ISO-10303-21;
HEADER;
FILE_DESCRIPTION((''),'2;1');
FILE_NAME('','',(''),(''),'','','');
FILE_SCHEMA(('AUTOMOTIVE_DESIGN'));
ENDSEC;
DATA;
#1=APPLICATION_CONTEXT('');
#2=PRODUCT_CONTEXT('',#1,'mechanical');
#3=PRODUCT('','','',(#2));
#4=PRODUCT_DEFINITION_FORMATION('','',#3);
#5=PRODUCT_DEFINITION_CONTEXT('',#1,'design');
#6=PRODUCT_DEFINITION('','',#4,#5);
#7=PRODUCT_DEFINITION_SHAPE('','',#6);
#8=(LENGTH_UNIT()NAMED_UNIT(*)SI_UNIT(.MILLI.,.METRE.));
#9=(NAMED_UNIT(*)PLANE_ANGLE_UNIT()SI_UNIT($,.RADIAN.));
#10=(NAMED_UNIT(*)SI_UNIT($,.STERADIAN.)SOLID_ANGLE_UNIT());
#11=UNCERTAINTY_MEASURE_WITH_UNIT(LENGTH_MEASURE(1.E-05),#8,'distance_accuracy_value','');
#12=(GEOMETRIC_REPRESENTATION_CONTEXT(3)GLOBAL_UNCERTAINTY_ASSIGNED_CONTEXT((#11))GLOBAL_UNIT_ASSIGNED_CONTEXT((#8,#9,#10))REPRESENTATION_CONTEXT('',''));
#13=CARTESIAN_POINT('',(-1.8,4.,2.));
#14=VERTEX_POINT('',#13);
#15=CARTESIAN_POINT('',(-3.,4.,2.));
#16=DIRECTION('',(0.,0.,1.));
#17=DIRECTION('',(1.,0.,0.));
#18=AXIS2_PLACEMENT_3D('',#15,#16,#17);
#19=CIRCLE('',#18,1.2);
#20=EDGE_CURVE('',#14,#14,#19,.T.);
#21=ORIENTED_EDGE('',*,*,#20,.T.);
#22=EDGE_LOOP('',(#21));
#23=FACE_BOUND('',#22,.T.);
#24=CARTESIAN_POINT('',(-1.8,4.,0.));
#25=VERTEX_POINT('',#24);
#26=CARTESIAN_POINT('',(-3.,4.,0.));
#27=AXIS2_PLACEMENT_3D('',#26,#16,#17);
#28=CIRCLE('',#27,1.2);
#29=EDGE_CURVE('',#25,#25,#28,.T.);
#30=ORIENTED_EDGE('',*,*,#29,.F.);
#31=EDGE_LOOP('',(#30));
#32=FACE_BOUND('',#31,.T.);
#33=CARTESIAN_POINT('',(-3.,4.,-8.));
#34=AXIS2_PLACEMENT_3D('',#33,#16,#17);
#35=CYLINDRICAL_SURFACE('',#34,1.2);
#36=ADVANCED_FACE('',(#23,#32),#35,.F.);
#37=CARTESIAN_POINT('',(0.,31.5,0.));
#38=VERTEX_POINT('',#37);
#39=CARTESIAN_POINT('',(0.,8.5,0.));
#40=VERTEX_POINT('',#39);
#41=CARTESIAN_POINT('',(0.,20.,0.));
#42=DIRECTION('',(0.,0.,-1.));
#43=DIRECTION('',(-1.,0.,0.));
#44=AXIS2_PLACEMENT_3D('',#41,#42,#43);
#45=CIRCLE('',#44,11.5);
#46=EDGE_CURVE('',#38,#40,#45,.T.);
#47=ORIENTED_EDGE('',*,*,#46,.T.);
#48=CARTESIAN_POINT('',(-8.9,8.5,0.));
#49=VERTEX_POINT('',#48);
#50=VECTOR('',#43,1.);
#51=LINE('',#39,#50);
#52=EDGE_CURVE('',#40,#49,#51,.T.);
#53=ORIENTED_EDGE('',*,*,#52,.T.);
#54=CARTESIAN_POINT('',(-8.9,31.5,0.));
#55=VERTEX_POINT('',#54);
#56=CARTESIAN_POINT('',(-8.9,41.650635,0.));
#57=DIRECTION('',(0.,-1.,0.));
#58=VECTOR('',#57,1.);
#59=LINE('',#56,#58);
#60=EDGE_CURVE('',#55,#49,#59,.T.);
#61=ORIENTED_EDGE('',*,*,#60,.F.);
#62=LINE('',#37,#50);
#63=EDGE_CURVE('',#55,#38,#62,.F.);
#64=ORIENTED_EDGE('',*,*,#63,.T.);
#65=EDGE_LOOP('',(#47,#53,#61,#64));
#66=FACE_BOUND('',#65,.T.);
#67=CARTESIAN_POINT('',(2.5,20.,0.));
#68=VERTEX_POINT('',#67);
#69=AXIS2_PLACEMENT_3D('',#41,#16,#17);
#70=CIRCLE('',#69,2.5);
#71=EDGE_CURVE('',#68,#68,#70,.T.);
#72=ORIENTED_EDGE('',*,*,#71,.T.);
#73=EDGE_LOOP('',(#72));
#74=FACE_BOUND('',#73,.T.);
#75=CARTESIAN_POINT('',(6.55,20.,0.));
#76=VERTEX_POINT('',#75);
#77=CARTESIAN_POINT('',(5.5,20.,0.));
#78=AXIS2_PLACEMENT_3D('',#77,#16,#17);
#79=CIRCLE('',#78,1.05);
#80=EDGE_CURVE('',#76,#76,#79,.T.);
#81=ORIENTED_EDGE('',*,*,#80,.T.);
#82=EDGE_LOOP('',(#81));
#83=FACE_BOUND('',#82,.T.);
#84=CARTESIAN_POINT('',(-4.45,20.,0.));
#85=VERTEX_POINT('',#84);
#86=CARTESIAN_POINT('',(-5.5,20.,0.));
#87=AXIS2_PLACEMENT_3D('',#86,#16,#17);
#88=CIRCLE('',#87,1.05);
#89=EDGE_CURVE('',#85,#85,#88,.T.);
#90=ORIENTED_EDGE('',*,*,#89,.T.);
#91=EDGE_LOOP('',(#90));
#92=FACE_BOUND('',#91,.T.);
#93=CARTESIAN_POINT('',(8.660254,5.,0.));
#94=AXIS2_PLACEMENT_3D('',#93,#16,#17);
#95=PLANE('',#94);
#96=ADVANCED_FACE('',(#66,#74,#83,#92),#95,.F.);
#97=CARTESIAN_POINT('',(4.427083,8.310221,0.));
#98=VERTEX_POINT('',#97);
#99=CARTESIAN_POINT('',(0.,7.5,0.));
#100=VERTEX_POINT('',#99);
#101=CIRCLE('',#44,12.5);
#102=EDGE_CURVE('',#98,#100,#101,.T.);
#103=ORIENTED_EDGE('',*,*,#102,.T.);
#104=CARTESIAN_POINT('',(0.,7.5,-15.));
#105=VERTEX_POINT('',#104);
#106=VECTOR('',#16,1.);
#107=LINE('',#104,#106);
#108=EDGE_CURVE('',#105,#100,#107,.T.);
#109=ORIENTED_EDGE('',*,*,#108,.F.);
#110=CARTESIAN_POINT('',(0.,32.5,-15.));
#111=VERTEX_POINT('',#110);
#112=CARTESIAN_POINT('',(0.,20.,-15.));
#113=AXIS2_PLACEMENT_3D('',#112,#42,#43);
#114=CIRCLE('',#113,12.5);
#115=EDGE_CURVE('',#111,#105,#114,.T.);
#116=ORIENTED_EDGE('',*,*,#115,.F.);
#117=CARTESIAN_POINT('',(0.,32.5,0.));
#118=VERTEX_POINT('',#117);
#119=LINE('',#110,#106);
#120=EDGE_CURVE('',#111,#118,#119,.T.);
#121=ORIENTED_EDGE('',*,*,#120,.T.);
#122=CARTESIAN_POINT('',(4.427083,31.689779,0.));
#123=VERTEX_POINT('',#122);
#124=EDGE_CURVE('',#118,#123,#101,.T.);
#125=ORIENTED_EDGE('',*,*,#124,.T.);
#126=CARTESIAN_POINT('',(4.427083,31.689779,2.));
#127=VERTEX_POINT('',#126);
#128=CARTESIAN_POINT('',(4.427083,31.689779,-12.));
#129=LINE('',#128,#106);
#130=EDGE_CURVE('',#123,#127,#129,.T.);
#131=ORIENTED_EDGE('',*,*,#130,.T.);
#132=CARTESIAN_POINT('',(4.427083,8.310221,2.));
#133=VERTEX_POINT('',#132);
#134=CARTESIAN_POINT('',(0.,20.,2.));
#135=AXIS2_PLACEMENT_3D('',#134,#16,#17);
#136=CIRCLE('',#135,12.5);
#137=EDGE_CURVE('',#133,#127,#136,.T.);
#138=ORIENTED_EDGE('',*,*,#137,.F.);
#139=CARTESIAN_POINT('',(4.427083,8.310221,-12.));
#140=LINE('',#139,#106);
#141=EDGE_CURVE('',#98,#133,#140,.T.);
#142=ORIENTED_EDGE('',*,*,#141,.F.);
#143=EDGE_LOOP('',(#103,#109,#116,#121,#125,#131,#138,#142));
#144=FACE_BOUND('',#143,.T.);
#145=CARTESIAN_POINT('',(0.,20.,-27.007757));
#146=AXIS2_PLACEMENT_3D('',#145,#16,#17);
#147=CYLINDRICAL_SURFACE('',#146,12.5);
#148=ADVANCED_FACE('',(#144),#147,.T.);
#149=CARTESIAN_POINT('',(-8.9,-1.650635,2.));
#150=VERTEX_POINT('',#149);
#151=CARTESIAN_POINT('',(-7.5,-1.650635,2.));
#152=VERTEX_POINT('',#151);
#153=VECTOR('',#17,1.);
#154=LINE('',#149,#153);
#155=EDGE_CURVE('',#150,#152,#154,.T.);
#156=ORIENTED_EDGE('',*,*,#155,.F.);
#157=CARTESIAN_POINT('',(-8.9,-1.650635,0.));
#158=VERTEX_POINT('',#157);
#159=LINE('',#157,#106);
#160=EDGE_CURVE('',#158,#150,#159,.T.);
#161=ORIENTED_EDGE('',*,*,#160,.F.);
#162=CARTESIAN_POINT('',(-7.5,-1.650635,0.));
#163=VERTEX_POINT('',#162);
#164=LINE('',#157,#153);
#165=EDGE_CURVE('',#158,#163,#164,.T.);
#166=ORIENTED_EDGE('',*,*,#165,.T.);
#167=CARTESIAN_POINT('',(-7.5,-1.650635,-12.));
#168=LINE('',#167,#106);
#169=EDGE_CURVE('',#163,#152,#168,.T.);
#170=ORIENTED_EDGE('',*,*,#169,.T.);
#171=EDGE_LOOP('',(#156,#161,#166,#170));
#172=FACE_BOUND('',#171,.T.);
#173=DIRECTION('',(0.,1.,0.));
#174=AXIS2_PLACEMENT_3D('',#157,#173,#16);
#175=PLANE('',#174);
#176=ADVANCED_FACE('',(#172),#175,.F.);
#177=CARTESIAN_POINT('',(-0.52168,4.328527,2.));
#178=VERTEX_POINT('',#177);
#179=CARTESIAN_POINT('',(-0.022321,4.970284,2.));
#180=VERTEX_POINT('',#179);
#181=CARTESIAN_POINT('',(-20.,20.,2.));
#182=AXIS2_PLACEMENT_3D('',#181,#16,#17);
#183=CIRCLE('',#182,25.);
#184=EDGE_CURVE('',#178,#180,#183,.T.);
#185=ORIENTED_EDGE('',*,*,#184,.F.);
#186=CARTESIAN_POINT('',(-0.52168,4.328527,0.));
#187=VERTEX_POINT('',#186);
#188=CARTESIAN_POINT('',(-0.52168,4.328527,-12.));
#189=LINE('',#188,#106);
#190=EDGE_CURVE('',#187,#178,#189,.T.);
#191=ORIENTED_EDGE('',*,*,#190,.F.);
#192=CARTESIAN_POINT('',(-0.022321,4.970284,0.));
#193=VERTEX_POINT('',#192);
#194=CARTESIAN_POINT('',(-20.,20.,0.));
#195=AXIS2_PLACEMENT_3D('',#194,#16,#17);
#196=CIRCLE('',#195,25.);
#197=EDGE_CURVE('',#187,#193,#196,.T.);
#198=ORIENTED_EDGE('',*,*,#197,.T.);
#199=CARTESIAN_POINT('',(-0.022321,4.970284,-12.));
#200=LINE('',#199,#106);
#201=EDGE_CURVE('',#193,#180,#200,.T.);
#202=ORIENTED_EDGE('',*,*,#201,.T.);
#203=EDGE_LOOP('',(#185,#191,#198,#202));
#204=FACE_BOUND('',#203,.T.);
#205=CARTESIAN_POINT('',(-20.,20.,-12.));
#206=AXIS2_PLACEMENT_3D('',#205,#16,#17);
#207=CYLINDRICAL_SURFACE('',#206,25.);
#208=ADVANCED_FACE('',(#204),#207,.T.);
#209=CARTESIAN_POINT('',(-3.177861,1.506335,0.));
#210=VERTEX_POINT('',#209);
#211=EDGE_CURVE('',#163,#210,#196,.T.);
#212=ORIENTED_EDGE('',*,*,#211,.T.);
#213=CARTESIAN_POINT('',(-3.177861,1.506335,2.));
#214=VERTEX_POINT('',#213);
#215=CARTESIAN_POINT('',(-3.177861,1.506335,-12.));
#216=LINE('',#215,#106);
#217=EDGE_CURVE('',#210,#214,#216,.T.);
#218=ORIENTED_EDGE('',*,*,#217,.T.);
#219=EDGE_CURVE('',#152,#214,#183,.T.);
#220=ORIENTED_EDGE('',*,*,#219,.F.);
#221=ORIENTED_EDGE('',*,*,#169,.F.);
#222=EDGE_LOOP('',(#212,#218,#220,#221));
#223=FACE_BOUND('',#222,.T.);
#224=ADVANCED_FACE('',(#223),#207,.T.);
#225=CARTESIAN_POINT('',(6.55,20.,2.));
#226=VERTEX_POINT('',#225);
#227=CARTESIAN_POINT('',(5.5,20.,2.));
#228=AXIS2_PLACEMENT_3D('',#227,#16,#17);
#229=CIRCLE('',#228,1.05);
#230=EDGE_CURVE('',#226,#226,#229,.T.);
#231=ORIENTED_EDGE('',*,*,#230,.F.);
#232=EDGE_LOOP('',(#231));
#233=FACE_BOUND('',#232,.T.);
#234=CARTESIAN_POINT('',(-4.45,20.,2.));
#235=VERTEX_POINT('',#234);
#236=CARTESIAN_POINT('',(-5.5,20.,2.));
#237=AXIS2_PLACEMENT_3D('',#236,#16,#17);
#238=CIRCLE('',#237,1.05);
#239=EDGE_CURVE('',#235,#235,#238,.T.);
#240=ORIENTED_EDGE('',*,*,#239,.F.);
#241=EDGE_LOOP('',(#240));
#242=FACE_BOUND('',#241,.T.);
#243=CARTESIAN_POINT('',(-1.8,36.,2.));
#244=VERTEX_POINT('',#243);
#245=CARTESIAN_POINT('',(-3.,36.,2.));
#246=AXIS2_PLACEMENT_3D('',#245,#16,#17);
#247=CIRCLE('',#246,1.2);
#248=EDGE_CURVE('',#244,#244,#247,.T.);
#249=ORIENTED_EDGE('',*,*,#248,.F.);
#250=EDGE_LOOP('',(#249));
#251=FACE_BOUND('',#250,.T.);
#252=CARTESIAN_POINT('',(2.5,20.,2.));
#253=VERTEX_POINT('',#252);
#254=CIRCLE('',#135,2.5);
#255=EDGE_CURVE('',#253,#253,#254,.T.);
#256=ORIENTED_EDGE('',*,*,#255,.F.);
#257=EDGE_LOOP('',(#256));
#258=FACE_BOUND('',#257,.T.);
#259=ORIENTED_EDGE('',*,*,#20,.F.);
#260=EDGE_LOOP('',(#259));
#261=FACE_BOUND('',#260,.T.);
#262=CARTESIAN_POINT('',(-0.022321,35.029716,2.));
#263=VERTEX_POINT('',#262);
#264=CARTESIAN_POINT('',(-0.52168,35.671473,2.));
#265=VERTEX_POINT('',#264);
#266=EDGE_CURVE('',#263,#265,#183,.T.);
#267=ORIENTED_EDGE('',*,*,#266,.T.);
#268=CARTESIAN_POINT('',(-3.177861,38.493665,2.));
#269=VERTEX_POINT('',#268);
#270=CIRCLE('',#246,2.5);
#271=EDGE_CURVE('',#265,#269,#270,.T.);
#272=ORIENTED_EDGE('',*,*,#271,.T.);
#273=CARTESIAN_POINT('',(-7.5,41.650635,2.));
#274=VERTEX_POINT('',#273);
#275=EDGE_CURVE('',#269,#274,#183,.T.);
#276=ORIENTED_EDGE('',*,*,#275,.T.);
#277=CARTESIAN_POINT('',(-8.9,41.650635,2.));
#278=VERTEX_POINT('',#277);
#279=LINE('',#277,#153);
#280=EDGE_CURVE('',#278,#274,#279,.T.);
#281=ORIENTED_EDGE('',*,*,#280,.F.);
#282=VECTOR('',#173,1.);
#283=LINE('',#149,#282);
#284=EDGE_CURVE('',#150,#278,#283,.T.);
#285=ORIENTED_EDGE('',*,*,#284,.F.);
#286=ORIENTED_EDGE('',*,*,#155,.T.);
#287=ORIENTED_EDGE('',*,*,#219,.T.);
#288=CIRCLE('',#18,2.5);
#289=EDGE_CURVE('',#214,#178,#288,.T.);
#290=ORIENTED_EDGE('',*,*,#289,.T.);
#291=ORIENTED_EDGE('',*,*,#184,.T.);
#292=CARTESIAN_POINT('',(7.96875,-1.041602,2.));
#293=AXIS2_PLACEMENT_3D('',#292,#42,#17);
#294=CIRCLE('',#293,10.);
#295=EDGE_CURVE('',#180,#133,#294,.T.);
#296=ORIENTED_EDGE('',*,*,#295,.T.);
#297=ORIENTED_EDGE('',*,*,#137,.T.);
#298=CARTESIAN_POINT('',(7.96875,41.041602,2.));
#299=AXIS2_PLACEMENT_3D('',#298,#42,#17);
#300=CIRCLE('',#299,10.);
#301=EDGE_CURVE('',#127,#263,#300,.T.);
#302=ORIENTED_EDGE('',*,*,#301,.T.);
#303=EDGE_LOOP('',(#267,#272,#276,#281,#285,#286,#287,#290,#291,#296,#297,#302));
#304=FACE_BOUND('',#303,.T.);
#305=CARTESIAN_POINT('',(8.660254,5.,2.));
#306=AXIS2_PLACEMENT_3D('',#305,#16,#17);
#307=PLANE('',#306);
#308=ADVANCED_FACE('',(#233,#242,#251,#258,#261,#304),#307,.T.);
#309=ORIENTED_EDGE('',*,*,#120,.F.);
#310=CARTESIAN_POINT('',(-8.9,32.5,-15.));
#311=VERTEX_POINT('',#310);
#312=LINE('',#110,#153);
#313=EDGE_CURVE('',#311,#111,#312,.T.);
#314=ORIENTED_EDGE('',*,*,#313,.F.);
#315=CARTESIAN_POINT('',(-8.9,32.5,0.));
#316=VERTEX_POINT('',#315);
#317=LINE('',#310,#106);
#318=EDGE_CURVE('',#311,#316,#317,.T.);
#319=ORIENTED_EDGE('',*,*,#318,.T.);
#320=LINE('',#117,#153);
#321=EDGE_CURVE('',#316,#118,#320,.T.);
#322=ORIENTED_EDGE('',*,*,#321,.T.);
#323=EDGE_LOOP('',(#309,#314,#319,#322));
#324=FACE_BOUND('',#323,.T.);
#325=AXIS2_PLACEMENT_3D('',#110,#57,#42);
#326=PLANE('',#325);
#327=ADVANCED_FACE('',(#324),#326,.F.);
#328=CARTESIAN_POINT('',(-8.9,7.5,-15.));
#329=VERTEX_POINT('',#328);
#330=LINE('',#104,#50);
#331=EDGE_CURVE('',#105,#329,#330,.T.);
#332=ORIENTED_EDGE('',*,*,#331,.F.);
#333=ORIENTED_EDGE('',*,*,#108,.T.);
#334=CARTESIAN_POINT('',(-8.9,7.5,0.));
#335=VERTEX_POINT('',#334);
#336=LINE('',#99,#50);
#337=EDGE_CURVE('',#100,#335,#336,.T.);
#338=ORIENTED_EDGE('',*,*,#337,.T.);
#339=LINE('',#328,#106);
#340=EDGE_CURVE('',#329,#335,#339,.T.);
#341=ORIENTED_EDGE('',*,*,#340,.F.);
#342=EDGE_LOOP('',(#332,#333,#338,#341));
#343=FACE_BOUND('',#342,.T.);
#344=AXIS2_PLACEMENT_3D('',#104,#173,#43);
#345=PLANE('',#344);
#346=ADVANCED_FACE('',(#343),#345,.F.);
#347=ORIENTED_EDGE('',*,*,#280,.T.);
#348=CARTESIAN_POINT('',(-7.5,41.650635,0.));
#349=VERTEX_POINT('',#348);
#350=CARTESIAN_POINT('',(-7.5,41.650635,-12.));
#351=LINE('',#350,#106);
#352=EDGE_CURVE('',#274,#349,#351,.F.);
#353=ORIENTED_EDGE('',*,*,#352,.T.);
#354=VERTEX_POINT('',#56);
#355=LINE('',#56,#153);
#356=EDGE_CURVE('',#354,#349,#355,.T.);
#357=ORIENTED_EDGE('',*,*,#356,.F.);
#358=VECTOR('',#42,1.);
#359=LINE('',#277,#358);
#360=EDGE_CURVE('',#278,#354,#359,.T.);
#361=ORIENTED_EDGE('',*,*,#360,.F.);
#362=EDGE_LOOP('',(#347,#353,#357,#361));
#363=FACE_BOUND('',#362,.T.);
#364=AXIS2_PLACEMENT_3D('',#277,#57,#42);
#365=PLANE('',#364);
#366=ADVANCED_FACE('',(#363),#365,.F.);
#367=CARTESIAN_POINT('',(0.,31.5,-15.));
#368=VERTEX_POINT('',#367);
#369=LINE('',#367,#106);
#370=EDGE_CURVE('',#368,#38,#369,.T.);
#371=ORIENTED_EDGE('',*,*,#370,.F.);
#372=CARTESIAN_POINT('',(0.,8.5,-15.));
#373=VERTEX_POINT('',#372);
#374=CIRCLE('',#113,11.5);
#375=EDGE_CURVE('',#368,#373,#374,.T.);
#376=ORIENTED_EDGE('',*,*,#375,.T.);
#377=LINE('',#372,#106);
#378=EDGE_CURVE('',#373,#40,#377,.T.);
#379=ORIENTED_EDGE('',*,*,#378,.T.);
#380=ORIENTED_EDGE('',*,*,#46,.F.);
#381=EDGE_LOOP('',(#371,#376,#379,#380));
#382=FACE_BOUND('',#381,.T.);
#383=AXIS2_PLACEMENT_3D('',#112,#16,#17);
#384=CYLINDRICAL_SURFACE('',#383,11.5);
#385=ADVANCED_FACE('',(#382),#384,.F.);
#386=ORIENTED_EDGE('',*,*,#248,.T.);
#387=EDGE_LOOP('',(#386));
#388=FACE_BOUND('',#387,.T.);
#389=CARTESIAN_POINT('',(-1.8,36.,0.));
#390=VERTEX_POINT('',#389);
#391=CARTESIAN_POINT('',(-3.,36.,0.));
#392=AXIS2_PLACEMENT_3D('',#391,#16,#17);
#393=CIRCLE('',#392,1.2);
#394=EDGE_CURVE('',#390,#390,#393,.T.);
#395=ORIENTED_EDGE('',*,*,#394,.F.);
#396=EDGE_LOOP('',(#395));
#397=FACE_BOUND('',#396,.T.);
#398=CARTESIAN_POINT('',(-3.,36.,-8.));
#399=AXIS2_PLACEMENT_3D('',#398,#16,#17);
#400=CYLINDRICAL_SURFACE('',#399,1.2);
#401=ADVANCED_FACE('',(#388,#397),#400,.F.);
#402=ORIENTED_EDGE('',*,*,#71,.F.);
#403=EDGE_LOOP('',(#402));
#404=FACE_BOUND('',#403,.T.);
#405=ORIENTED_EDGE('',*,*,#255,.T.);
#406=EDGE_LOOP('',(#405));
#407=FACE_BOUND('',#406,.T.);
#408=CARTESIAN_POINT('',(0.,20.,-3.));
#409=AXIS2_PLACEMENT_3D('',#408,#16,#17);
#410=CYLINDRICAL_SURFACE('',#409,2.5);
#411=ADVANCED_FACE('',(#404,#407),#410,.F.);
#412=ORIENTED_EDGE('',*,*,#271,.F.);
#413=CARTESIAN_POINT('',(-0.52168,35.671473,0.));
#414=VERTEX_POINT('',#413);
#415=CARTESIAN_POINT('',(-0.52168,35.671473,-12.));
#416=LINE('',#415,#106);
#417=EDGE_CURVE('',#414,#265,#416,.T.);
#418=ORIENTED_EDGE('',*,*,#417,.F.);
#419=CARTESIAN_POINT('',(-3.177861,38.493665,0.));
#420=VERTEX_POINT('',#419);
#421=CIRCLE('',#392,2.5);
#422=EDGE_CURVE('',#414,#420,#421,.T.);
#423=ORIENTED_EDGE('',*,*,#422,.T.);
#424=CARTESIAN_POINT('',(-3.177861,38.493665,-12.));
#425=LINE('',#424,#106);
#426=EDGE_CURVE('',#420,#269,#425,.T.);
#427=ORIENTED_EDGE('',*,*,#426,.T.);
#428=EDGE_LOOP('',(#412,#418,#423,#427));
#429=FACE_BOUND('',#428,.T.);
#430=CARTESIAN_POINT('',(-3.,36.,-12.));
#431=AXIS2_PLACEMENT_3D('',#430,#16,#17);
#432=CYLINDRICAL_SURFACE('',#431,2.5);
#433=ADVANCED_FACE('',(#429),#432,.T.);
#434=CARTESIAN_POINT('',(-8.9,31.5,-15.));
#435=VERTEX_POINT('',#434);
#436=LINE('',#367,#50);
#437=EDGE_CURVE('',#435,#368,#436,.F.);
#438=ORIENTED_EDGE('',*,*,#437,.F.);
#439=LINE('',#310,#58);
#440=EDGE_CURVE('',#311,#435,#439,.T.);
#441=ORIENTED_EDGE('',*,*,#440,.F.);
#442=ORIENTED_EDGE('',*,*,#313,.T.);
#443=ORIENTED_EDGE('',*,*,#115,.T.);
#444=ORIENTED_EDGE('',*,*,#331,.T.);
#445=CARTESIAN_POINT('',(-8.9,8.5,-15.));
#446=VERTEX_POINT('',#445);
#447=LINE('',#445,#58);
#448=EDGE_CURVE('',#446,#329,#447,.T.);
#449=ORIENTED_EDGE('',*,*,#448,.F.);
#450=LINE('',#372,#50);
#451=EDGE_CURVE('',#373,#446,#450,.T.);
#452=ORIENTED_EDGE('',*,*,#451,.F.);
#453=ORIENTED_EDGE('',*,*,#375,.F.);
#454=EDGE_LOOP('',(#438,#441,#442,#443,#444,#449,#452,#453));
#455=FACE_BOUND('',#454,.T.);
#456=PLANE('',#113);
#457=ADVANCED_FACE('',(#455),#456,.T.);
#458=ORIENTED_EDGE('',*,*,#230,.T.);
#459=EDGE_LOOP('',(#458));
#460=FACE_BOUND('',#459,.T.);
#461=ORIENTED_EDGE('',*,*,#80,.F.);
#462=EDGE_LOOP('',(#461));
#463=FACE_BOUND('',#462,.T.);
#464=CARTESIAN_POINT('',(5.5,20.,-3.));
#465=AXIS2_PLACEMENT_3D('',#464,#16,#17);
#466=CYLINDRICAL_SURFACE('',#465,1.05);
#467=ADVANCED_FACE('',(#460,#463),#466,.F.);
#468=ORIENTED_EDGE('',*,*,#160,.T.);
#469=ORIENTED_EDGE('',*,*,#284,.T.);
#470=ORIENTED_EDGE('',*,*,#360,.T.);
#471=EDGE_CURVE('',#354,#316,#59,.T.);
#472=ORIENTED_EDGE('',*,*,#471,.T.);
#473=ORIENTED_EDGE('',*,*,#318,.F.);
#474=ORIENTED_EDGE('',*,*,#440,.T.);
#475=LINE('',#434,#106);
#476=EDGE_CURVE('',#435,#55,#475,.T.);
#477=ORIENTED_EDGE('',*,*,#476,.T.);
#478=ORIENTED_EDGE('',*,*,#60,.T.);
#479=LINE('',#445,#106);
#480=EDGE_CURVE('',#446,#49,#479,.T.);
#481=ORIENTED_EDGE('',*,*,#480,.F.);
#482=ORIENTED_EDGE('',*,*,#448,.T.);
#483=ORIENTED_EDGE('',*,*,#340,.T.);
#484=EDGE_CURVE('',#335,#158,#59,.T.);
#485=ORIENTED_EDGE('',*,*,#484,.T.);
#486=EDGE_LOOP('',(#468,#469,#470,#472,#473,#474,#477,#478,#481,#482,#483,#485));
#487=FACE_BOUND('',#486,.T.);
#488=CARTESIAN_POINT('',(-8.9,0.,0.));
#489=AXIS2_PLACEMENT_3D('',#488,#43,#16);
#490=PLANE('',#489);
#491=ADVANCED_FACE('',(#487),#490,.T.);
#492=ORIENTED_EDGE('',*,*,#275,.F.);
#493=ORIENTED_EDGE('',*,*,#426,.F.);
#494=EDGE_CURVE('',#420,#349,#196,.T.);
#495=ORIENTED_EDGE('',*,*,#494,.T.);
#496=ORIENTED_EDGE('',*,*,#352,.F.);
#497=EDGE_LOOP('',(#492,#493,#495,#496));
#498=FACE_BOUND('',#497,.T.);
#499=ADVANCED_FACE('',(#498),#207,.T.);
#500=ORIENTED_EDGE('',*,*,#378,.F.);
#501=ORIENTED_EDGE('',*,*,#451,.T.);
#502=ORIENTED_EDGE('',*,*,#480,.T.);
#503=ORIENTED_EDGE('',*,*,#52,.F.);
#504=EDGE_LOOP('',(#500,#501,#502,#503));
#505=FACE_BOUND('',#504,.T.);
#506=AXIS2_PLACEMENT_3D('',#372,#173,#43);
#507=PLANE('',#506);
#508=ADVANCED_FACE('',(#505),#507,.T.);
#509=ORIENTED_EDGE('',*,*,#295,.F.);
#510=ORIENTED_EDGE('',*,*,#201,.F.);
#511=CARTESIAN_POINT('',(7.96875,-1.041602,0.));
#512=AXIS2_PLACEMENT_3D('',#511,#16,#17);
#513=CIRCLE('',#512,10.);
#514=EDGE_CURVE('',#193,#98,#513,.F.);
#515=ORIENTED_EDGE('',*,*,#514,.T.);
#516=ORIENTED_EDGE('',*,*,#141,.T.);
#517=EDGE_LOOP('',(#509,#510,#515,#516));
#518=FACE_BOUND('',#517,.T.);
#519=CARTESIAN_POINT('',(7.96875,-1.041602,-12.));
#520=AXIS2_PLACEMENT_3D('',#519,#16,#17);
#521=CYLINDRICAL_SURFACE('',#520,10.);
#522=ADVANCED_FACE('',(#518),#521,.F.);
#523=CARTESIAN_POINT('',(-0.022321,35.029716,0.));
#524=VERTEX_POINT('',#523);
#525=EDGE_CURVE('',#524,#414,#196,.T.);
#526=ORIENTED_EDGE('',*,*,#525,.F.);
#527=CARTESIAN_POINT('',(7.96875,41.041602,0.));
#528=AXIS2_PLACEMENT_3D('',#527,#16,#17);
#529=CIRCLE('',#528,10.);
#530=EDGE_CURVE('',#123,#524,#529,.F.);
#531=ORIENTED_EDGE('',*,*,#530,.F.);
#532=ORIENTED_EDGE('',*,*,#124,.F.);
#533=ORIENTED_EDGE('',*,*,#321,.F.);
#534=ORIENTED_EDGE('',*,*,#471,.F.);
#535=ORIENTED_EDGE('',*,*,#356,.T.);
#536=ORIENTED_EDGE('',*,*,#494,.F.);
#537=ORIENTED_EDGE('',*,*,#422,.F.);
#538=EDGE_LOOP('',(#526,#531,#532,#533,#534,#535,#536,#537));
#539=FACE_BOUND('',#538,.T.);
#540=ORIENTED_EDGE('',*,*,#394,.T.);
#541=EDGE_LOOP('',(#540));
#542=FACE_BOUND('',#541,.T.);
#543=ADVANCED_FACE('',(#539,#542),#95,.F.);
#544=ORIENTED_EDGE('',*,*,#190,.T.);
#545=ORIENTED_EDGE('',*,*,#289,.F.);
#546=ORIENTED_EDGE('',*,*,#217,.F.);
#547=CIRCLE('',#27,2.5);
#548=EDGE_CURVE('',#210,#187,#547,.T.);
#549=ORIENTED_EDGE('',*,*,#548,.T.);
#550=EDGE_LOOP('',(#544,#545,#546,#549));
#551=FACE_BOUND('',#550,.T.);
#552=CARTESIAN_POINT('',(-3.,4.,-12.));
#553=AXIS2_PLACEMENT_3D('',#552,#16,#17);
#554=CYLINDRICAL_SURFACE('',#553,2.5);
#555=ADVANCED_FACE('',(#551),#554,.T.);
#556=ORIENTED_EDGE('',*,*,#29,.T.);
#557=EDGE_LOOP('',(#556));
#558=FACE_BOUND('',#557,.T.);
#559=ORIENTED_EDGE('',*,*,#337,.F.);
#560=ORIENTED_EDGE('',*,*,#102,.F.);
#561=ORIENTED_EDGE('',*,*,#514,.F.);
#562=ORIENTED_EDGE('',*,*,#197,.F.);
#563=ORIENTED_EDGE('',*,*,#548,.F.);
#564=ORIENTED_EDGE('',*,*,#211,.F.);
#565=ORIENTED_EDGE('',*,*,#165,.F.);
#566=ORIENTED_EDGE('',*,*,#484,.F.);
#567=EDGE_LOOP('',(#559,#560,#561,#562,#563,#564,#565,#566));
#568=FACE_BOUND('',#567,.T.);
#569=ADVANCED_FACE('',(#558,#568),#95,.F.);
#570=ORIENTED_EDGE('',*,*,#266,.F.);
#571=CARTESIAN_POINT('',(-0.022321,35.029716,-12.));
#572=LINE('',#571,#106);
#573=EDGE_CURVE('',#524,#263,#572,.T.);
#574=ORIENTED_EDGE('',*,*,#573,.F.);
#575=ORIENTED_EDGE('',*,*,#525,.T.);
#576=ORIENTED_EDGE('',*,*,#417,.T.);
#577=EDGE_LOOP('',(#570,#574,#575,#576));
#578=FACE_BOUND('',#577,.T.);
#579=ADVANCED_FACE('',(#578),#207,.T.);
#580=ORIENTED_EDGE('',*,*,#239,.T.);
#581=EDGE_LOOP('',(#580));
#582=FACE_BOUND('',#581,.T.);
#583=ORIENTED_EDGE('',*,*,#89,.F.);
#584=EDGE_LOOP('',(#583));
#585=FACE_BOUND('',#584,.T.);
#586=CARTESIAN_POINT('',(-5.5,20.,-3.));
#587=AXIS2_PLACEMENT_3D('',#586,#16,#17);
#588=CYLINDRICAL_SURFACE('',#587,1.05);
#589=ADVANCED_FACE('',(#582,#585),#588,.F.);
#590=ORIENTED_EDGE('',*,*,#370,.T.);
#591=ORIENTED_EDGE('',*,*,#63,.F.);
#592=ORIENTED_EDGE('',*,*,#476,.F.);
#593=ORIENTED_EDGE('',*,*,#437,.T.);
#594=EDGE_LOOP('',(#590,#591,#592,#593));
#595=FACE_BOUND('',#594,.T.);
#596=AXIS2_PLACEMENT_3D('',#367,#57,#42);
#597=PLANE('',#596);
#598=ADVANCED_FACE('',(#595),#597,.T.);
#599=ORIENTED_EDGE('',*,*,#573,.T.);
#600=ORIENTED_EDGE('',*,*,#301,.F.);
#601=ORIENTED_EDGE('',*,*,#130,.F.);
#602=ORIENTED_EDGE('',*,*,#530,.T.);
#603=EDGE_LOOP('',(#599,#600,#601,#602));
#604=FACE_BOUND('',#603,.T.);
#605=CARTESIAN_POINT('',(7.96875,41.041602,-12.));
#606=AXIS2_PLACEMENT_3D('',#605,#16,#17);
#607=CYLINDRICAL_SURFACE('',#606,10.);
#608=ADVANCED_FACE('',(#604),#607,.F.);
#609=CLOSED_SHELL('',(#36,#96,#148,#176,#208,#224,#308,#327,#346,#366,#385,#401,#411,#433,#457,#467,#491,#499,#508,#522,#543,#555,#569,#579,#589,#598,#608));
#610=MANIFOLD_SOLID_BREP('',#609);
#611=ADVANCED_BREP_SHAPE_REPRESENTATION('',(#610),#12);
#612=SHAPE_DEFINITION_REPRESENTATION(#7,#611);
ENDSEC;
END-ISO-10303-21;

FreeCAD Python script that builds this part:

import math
import FreeCAD as App
import Part
import Sketcher


def add_polygon(sketch, points):
    """Adds a closed chain of lines whose ends are joined by coincident constraints."""
    first, n = sketch.GeometryCount, len(points)
    for a, b in zip(points, points[1:] + points[:1]):
        sketch.addGeometry(Part.LineSegment(App.Vector(*a, 0), App.Vector(*b, 0)), False)
    for i in range(n):
        sketch.addConstraint(Sketcher.Constraint("Coincident", first + i, 2, first + (i + 1) % n, 1))

doc = App.newDocument("Part")
body = doc.addObject("PartDesign::Body", "Body")

# Sketch on XY plane
sketch1 = doc.addObject("Sketcher::SketchObject", "Sketch")
body.addObject(sketch1)
sketch1.AttachmentSupport = (doc.XY_Plane, [""])
sketch1.MapMode = "FlatFace"
sketch1.addGeometry(Part.ArcOfCircle(Part.Circle(App.Vector(0, 0, 0), App.Vector(0, 0, 1), 25), math.radians(30), math.radians(150)), False)
sketch1.addGeometry(Part.ArcOfCircle(Part.Circle(App.Vector(-17, 10, 0), App.Vector(0, 0, 1), 5), math.radians(150), math.radians(330)), False)
sketch1.addGeometry(Part.ArcOfCircle(Part.Circle(App.Vector(0, 0, 0), App.Vector(0, 0, 1), 15), math.radians(30), math.radians(150)), False)
sketch1.addGeometry(Part.ArcOfCircle(Part.Circle(App.Vector(17, 10, 0), App.Vector(0, 0, 1), 5), math.radians(-150), math.radians(30)), False)
sketch1.addConstraint(Sketcher.Constraint("Tangent", 0, 2, 1, 1))
sketch1.addConstraint(Sketcher.Constraint("Tangent", 1, 2, 2, 2))
sketch1.addConstraint(Sketcher.Constraint("Tangent", 2, 1, 3, 1))
sketch1.addConstraint(Sketcher.Constraint("Tangent", 3, 2, 0, 1))
sketch1.addConstraint(Sketcher.Constraint("Coincident", 0, 3, -1, 1))
sketch1.addConstraint(Sketcher.Constraint("Coincident", 2, 3, -1, 1))
sketch1.addConstraint(Sketcher.Constraint("Horizontal", 1, 3, 3, 3))
sketch1.addConstraint(Sketcher.Constraint("Radius", 0, 25.0))
sketch1.addConstraint(Sketcher.Constraint("Radius", 1, 5.0))
sketch1.addConstraint(Sketcher.Constraint("DistanceY", -1, 1, 1, 3, 10.0))
pad1 = doc.addObject("PartDesign::Pad", "Pad")
body.addObject(pad1)
pad1.Profile = sketch1
pad1.Length = 2

# Sketch on XY plane
sketch2 = doc.addObject("Sketcher::SketchObject", "Sketch001")
body.addObject(sketch2)
sketch2.AttachmentSupport = (doc.XY_Plane, [""])
sketch2.MapMode = "FlatFace"
sketch2.AttachmentOffset = App.Placement(App.Vector(0, 0, 2), App.Rotation())
sketch2.addGeometry(Part.Circle(App.Vector(0, 20, 0), App.Vector(0, 0, 1), 2.5), False)
sketch2.addGeometry(Part.Circle(App.Vector(-5.5, 20, 0), App.Vector(0, 0, 1), 1.1), False)
sketch2.addGeometry(Part.Circle(App.Vector(5.5, 20, 0), App.Vector(0, 0, 1), 1.1), False)
sketch2.addConstraint(Sketcher.Constraint("Equal", 1, 2))
sketch2.addConstraint(Sketcher.Constraint("Symmetric", 1, 3, 2, 3, -2))
sketch2.addConstraint(Sketcher.Constraint("PointOnObject", 0, 3, -2))
sketch2.addConstraint(Sketcher.Constraint("Horizontal", 0, 3, 1, 3))
sketch2.addConstraint(Sketcher.Constraint("Diameter", 0, 5.0))
sketch2.addConstraint(Sketcher.Constraint("Diameter", 1, 2.1))
sketch2.addConstraint(Sketcher.Constraint("DistanceY", -1, 1, 0, 3, 20.0))
sketch2.addConstraint(Sketcher.Constraint("DistanceX", 1, 3, 2, 3, 11.0))
pocket1 = doc.addObject("PartDesign::Pocket", "Pocket")
body.addObject(pocket1)
pocket1.Profile = sketch2
pocket1.Length = 5

# Sketch on XY plane
sketch3 = doc.addObject("Sketcher::SketchObject", "Sketch002")
body.addObject(sketch3)
sketch3.AttachmentSupport = (doc.XY_Plane, [""])
sketch3.MapMode = "FlatFace"
sketch3.AttachmentOffset = App.Placement(App.Vector(0, 0, 2), App.Rotation())
sketch3.addGeometry(Part.Circle(App.Vector(-17.3, 10, 0), App.Vector(0, 0, 1), 1.1), False)
sketch3.addGeometry(Part.Circle(App.Vector(17.3, 10, 0), App.Vector(0, 0, 1), 1.1), False)
sketch3.addConstraint(Sketcher.Constraint("Equal", 0, 1))
sketch3.addConstraint(Sketcher.Constraint("Symmetric", 0, 3, 1, 3, -2))
sketch3.addConstraint(Sketcher.Constraint("Diameter", 0, 2.2))
sketch3.addConstraint(Sketcher.Constraint("DistanceY", -1, 1, 0, 3, 10.0))
sketch3.addConstraint(Sketcher.Constraint("DistanceX", 0, 3, -1, 1, 17.320508))
pocket2 = doc.addObject("PartDesign::Pocket", "Pocket001")
body.addObject(pocket2)
pocket2.Profile = sketch3
pocket2.Length = 2

# Sketch on XY plane
sketch4 = doc.addObject("Sketcher::SketchObject", "Sketch003")
body.addObject(sketch4)
sketch4.AttachmentSupport = (doc.XY_Plane, [""])
sketch4.MapMode = "FlatFace"
sketch4.addGeometry(Part.ArcOfCircle(Part.Circle(App.Vector(0, 20, 0), App.Vector(0, 0, 1), 13), math.radians(-139), math.radians(-41)), False)
sketch4.addGeometry(Part.ArcOfCircle(Part.Circle(App.Vector(0, 0, 0), App.Vector(0, 0, 1), 15), math.radians(51), math.radians(129)), False)
sketch4.addGeometry(Part.ArcOfCircle(Part.Circle(App.Vector(0, 0, 0), App.Vector(0, 0, 1), 25), math.radians(60), math.radians(120)), False)
sketch4.addGeometry(Part.ArcOfCircle(Part.Circle(App.Vector(0, 20, 0), App.Vector(0, 0, 1), 12), math.radians(8), math.radians(172)), False)
sketch4.addConstraint(Sketcher.Constraint("Coincident", 0, 1, 1, 2))
sketch4.addConstraint(Sketcher.Constraint("Coincident", 1, 1, 0, 2))
sketch4.addConstraint(Sketcher.Constraint("Coincident", 2, 1, 3, 1))
sketch4.addConstraint(Sketcher.Constraint("Coincident", 3, 2, 2, 2))
sketch4.addConstraint(Sketcher.Constraint("Coincident", 1, 3, -1, 1))
sketch4.addConstraint(Sketcher.Constraint("Coincident", 2, 3, -1, 1))
sketch4.addConstraint(Sketcher.Constraint("Coincident", 3, 3, 0, 3))
sketch4.addConstraint(Sketcher.Constraint("Equal", 0, 3))
sketch4.addConstraint(Sketcher.Constraint("PointOnObject", 0, 3, -2))
sketch4.addConstraint(Sketcher.Constraint("Radius", 1, 15.0))
sketch4.addConstraint(Sketcher.Constraint("Radius", 2, 25.0))
sketch4.addConstraint(Sketcher.Constraint("Radius", 0, 12.5))
sketch4.addConstraint(Sketcher.Constraint("DistanceY", -1, 1, 0, 3, 20.0))
pad2 = doc.addObject("PartDesign::Pad", "Pad001")
body.addObject(pad2)
pad2.Profile = sketch4
pad2.Length = 2

# Sketch on XY plane
sketch5 = doc.addObject("Sketcher::SketchObject", "Sketch004")
body.addObject(sketch5)
sketch5.AttachmentSupport = (doc.XY_Plane, [""])
sketch5.MapMode = "FlatFace"
sketch5.AttachmentOffset = App.Placement(App.Vector(0, 0, 2), App.Rotation())
add_polygon(sketch5, [(-29, 39), (-29, -1), (29, -1), (29, 39)])  # lines 0-3
sketch5.addGeometry(Part.Circle(App.Vector(0, 20, 0), App.Vector(0, 0, 1), 12), False)  # 4
sketch5.addConstraint(Sketcher.Constraint("Vertical", 0))
sketch5.addConstraint(Sketcher.Constraint("Horizontal", 1))
sketch5.addConstraint(Sketcher.Constraint("Vertical", 2))
sketch5.addConstraint(Sketcher.Constraint("Horizontal", 3))
sketch5.addConstraint(Sketcher.Constraint("PointOnObject", 4, 3, -2))
sketch5.addConstraint(Sketcher.Constraint("Diameter", 4, 25.0))
sketch5.addConstraint(Sketcher.Constraint("DistanceY", -1, 1, 4, 3, 20.0))
sketch5.addConstraint(Sketcher.Constraint("DistanceX", 1, 1, 1, 2, 57.136))
sketch5.addConstraint(Sketcher.Constraint("DistanceY", 0, 2, 0, 1, 39.994))
sketch5.addConstraint(Sketcher.Constraint("DistanceX", 0, 2, -1, 1, 28.568))
sketch5.addConstraint(Sketcher.Constraint("DistanceY", 0, 2, -1, 1, 1.247))
pocket3 = doc.addObject("PartDesign::Pocket", "Pocket002")
body.addObject(pocket3)
pocket3.Profile = sketch5
pocket3.Length = 10

# Sketch on XY plane
sketch6 = doc.addObject("Sketcher::SketchObject", "Sketch005")
body.addObject(sketch6)
sketch6.AttachmentSupport = (doc.XY_Plane, [""])
sketch6.MapMode = "FlatFace"
sketch6.AttachmentOffset = App.Placement(App.Vector(0, 0, 2), App.Rotation())
sketch6.addGeometry(Part.LineSegment(App.Vector(-8, 10, 0), App.Vector(-8, -5, 0)), False)
sketch6.addGeometry(Part.LineSegment(App.Vector(-8, -5, 0), App.Vector(8, -5, 0)), False)
sketch6.addGeometry(Part.LineSegment(App.Vector(8, -5, 0), App.Vector(8, 10, 0)), False)
sketch6.addGeometry(Part.ArcOfCircle(Part.Circle(App.Vector(0, 20, 0), App.Vector(0, 0, 1), 12), math.radians(-127), math.radians(-53)), False)
sketch6.addGeometry(Part.LineSegment(App.Vector(8, 45, 0), App.Vector(-8, 45, 0)), False)
sketch6.addGeometry(Part.LineSegment(App.Vector(-8, 45, 0), App.Vector(-8, 30, 0)), False)
sketch6.addGeometry(Part.ArcOfCircle(Part.Circle(App.Vector(0, 20, 0), App.Vector(0, 0, 1), 12), math.radians(53), math.radians(127)), False)
sketch6.addGeometry(Part.LineSegment(App.Vector(8, 30, 0), App.Vector(8, 45, 0)), False)
sketch6.addConstraint(Sketcher.Constraint("Coincident", 0, 2, 1, 1))
sketch6.addConstraint(Sketcher.Constraint("Coincident", 1, 2, 2, 1))
sketch6.addConstraint(Sketcher.Constraint("Coincident", 2, 2, 3, 2))
sketch6.addConstraint(Sketcher.Constraint("Coincident", 3, 1, 0, 1))
sketch6.addConstraint(Sketcher.Constraint("Coincident", 4, 2, 5, 1))
sketch6.addConstraint(Sketcher.Constraint("Coincident", 5, 2, 6, 2))
sketch6.addConstraint(Sketcher.Constraint("Coincident", 6, 1, 7, 1))
sketch6.addConstraint(Sketcher.Constraint("Coincident", 7, 2, 4, 1))
sketch6.addConstraint(Sketcher.Constraint("Vertical", 0))
sketch6.addConstraint(Sketcher.Constraint("Horizontal", 1))
sketch6.addConstraint(Sketcher.Constraint("Vertical", 2))
sketch6.addConstraint(Sketcher.Constraint("Horizontal", 4))
sketch6.addConstraint(Sketcher.Constraint("Vertical", 5))
sketch6.addConstraint(Sketcher.Constraint("Vertical", 7))
sketch6.addConstraint(Sketcher.Constraint("Coincident", 6, 3, 3, 3))
sketch6.addConstraint(Sketcher.Constraint("Equal", 3, 6))
sketch6.addConstraint(Sketcher.Constraint("Symmetric", 2, 2, 3, 1, -2))
sketch6.addConstraint(Sketcher.Constraint("Horizontal", 5, 2, 6, 1))
sketch6.addConstraint(Sketcher.Constraint("Vertical", 3, 1, 4, 2))
sketch6.addConstraint(Sketcher.Constraint("Equal", 4, 0))
sketch6.addConstraint(Sketcher.Constraint("Equal", 2, 5))
sketch6.addConstraint(Sketcher.Constraint("Radius", 3, 12.5))
sketch6.addConstraint(Sketcher.Constraint("DistanceX", 1, 1, 1, 2, 15.0))
sketch6.addConstraint(Sketcher.Constraint("DistanceY", -1, 1, 3, 3, 20.0))
pad3 = doc.addObject("PartDesign::Pad", "Pad002")
body.addObject(pad3)
pad3.Profile = sketch6
pad3.Length = 2
pad3.Reversed = True

# Sketch on XY plane
sketch7 = doc.addObject("Sketcher::SketchObject", "Sketch006")
body.addObject(sketch7)
sketch7.AttachmentSupport = (doc.XY_Plane, [""])
sketch7.MapMode = "FlatFace"
sketch7.AttachmentOffset = App.Placement(App.Vector(0, 0, 2), App.Rotation())
sketch7.addGeometry(Part.Circle(App.Vector(-3, 4, 0), App.Vector(0, 0, 1), 1.2), False)
sketch7.addGeometry(Part.Circle(App.Vector(-3, 36, 0), App.Vector(0, 0, 1), 1.2), False)
sketch7.addConstraint(Sketcher.Constraint("Equal", 0, 1))
sketch7.addConstraint(Sketcher.Constraint("Vertical", 0, 3, 1, 3))
sketch7.addConstraint(Sketcher.Constraint("Diameter", 0, 2.4))
sketch7.addConstraint(Sketcher.Constraint("DistanceX", 0, 3, -1, 1, 3.0))
sketch7.addConstraint(Sketcher.Constraint("DistanceY", -1, 1, 0, 3, 4.0))
sketch7.addConstraint(Sketcher.Constraint("DistanceY", -1, 1, 1, 3, 36.0))
pocket4 = doc.addObject("PartDesign::Pocket", "Pocket003")
body.addObject(pocket4)
pocket4.Profile = sketch7
pocket4.Length = 10

# Sketch on XY plane
sketch8 = doc.addObject("Sketcher::SketchObject", "Sketch007")
body.addObject(sketch8)
sketch8.AttachmentSupport = (doc.XY_Plane, [""])
sketch8.MapMode = "FlatFace"
sketch8.AttachmentOffset = App.Placement(App.Vector(0, 0, 2), App.Rotation())
sketch8.addGeometry(Part.LineSegment(App.Vector(-19.1, -5, 0), App.Vector(-19.1, -11.6, 0)), False)
sketch8.addGeometry(Part.LineSegment(App.Vector(-19.1, -11.6, 0), App.Vector(19.1, -11.6, 0)), False)
sketch8.addGeometry(Part.LineSegment(App.Vector(19.1, -11.6, 0), App.Vector(19.1, 51.6, 0)), False)
sketch8.addGeometry(Part.LineSegment(App.Vector(19.1, 51.6, 0), App.Vector(-19.1, 51.6, 0)), False)
sketch8.addGeometry(Part.LineSegment(App.Vector(-19.1, 51.6, 0), App.Vector(-19.1, 45, 0)), False)
sketch8.addGeometry(Part.ArcOfCircle(Part.Circle(App.Vector(-20, 20, 0), App.Vector(0, 0, 1), 25), math.radians(48), math.radians(88)), False)
sketch8.addGeometry(Part.ArcOfCircle(Part.Circle(App.Vector(-3, 36, 0), App.Vector(0, 0, 1), 2.5), math.radians(-8), math.radians(94)), False)
sketch8.addGeometry(Part.ArcOfCircle(Part.Circle(App.Vector(-20, 20, 0), App.Vector(0, 0, 1), 25), math.radians(36.96), math.radians(38.82)), False)
sketch8.addGeometry(Part.ArcOfCircle(Part.Circle(App.Vector(8, 41, 0), App.Vector(0, 0, 1), 10), math.radians(-143), math.radians(-111)), False)
sketch8.addGeometry(Part.ArcOfCircle(Part.Circle(App.Vector(0, 20, 0), App.Vector(0, 0, 1), 12.5), math.radians(-69), math.radians(69)), False)
sketch8.addGeometry(Part.ArcOfCircle(Part.Circle(App.Vector(8, -1, 0), App.Vector(0, 0, 1), 10), math.radians(111), math.radians(143)), False)
sketch8.addGeometry(Part.ArcOfCircle(Part.Circle(App.Vector(-20, 20, 0), App.Vector(0, 0, 1), 25), math.radians(-38.82), math.radians(-36.96)), False)
sketch8.addGeometry(Part.ArcOfCircle(Part.Circle(App.Vector(-3, 4, 0), App.Vector(0, 0, 1), 2.5), math.radians(-94), math.radians(8)), False)
sketch8.addGeometry(Part.ArcOfCircle(Part.Circle(App.Vector(-20, 20, 0), App.Vector(0, 0, 1), 25), math.radians(-88), math.radians(-48)), False)
sketch8.addConstraint(Sketcher.Constraint("Coincident", 0, 2, 1, 1))
sketch8.addConstraint(Sketcher.Constraint("Coincident", 1, 2, 2, 1))
sketch8.addConstraint(Sketcher.Constraint("Coincident", 2, 2, 3, 1))
sketch8.addConstraint(Sketcher.Constraint("Coincident", 3, 2, 4, 1))
sketch8.addConstraint(Sketcher.Constraint("Coincident", 4, 2, 5, 2))
sketch8.addConstraint(Sketcher.Constraint("Coincident", 5, 1, 6, 2))
sketch8.addConstraint(Sketcher.Constraint("Coincident", 6, 1, 7, 2))
sketch8.addConstraint(Sketcher.Constraint("Tangent", 7, 1, 8, 1))
sketch8.addConstraint(Sketcher.Constraint("Tangent", 8, 2, 9, 2))
sketch8.addConstraint(Sketcher.Constraint("Tangent", 9, 1, 10, 1))
sketch8.addConstraint(Sketcher.Constraint("Tangent", 10, 2, 11, 2))
sketch8.addConstraint(Sketcher.Constraint("Coincident", 11, 1, 12, 2))
sketch8.addConstraint(Sketcher.Constraint("Coincident", 12, 1, 13, 2))
sketch8.addConstraint(Sketcher.Constraint("Coincident", 13, 1, 0, 1))
sketch8.addConstraint(Sketcher.Constraint("Vertical", 0))
sketch8.addConstraint(Sketcher.Constraint("Horizontal", 1))
sketch8.addConstraint(Sketcher.Constraint("Vertical", 2))
sketch8.addConstraint(Sketcher.Constraint("Horizontal", 3))
sketch8.addConstraint(Sketcher.Constraint("Vertical", 4))
sketch8.addConstraint(Sketcher.Constraint("Coincident", 7, 3, 5, 3))
sketch8.addConstraint(Sketcher.Constraint("Coincident", 11, 3, 5, 3))
sketch8.addConstraint(Sketcher.Constraint("Coincident", 13, 3, 5, 3))
sketch8.addConstraint(Sketcher.Constraint("Equal", 5, 7))
sketch8.addConstraint(Sketcher.Constraint("Equal", 8, 10))
sketch8.addConstraint(Sketcher.Constraint("Equal", 7, 11))
sketch8.addConstraint(Sketcher.Constraint("Equal", 6, 12))
sketch8.addConstraint(Sketcher.Constraint("Equal", 11, 13))
sketch8.addConstraint(Sketcher.Constraint("PointOnObject", 9, 3, -2))
sketch8.addConstraint(Sketcher.Constraint("Horizontal", 7, 3, 9, 3))
sketch8.addConstraint(Sketcher.Constraint("Vertical", 6, 3, 12, 3))
sketch8.addConstraint(Sketcher.Constraint("Vertical", 0, 2, 3, 2))
sketch8.addConstraint(Sketcher.Constraint("Vertical", 6, 1, 11, 1))
sketch8.addConstraint(Sketcher.Constraint("Equal", 0, 4))
sketch8.addConstraint(Sketcher.Constraint("Radius", 5, 25.0))
sketch8.addConstraint(Sketcher.Constraint("Radius", 8, 10.0))
sketch8.addConstraint(Sketcher.Constraint("Radius", 6, 2.5))
sketch8.addConstraint(Sketcher.Constraint("Radius", 9, 12.5))
sketch8.addConstraint(Sketcher.Constraint("DistanceX", 5, 3, -1, 1, 20.0))
sketch8.addConstraint(Sketcher.Constraint("DistanceY", -1, 1, 5, 3, 20.0))
sketch8.addConstraint(Sketcher.Constraint("DistanceX", 6, 3, -1, 1, 3.0))
sketch8.addConstraint(Sketcher.Constraint("DistanceY", -1, 1, 6, 3, 36.0))
sketch8.addConstraint(Sketcher.Constraint("DistanceX", 1, 1, 1, 2, 38.188))
sketch8.addConstraint(Sketcher.Constraint("DistanceY", 2, 1, 2, 2, 63.188))
sketch8.addConstraint(Sketcher.Constraint("DistanceX", 0, 2, -1, 1, 19.094))
pocket5 = doc.addObject("PartDesign::Pocket", "Pocket004")
body.addObject(pocket5)
pocket5.Profile = sketch8
pocket5.Length = 14

# Sketch on XY plane
sketch9 = doc.addObject("Sketcher::SketchObject", "Sketch008")
body.addObject(sketch9)
sketch9.AttachmentSupport = (doc.XY_Plane, [""])
sketch9.MapMode = "FlatFace"
add_polygon(sketch9, [(-8, 36), (-8, 4), (-37, 13)])  # lines 0-2
sketch9.addConstraint(Sketcher.Constraint("Vertical", 0))
sketch9.addConstraint(Sketcher.Constraint("DistanceX", 0, 2, -1, 1, 7.5))
sketch9.addConstraint(Sketcher.Constraint("DistanceX", 1, 2, -1, 1, 36.824101))
sketch9.addConstraint(Sketcher.Constraint("DistanceY", 0, 2, 0, 1, 31.650635))
sketch9.addConstraint(Sketcher.Constraint("DistanceY", -1, 1, 1, 2, 12.604039))
sketch9.addConstraint(Sketcher.Constraint("DistanceY", 1, 2, 2, 2, 23.221279))
pocket6 = doc.addObject("PartDesign::Pocket", "Pocket005")
body.addObject(pocket6)
pocket6.Profile = sketch9
pocket6.Length = 10
pocket6.Reversed = True

# Sketch on YZ plane
sketch10 = doc.addObject("Sketcher::SketchObject", "Sketch009")
body.addObject(sketch10)
sketch10.AttachmentSupport = (doc.YZ_Plane, [""])
sketch10.MapMode = "FlatFace"
sketch10.AttachmentOffset = App.Placement(App.Vector(0, 0, -7.5), App.Rotation())
add_polygon(sketch10, [(41.7, 0), (-1.7, 0), (-1.7, 2), (41.7, 2)])  # lines 0-3
sketch10.addConstraint(Sketcher.Constraint("Horizontal", 0))
sketch10.addConstraint(Sketcher.Constraint("Vertical", 1))
sketch10.addConstraint(Sketcher.Constraint("Horizontal", 2))
sketch10.addConstraint(Sketcher.Constraint("Vertical", 3))
sketch10.addConstraint(Sketcher.Constraint("PointOnObject", 0, 2, -1))
sketch10.addConstraint(Sketcher.Constraint("DistanceY", 1, 1, 1, 2, 2.0))
sketch10.addConstraint(Sketcher.Constraint("DistanceX", 0, 2, 0, 1, 43.30127))
sketch10.addConstraint(Sketcher.Constraint("DistanceX", 0, 2, -1, 1, 1.650635))
pad4 = doc.addObject("PartDesign::Pad", "Pad003")
body.addObject(pad4)
pad4.Profile = sketch10
pad4.Length = 1.4
pad4.Reversed = True

# Sketch on XY plane
sketch11 = doc.addObject("Sketcher::SketchObject", "Sketch010")
body.addObject(sketch11)
sketch11.AttachmentSupport = (doc.XY_Plane, [""])
sketch11.MapMode = "FlatFace"
sketch11.addGeometry(Part.LineSegment(App.Vector(0, 7.5, 0), App.Vector(-8.9, 7.5, 0)), False)
sketch11.addGeometry(Part.LineSegment(App.Vector(-8.9, 7.5, 0), App.Vector(-8.9, 8.5, 0)), False)
sketch11.addGeometry(Part.LineSegment(App.Vector(-8.9, 8.5, 0), App.Vector(0, 8.5, 0)), False)
sketch11.addGeometry(Part.ArcOfCircle(Part.Circle(App.Vector(0, 20, 0), App.Vector(0, 0, 1), 11.5), math.radians(-90), math.radians(90)), False)
sketch11.addGeometry(Part.LineSegment(App.Vector(0, 31.5, 0), App.Vector(-8.9, 31.5, 0)), False)
sketch11.addGeometry(Part.LineSegment(App.Vector(-8.9, 31.5, 0), App.Vector(-8.9, 32.5, 0)), False)
sketch11.addGeometry(Part.LineSegment(App.Vector(-8.9, 32.5, 0), App.Vector(0, 32.5, 0)), False)
sketch11.addGeometry(Part.ArcOfCircle(Part.Circle(App.Vector(0, 20, 0), App.Vector(0, 0, 1), 12.5), math.radians(-90), math.radians(90)), False)
sketch11.addConstraint(Sketcher.Constraint("Coincident", 0, 2, 1, 1))
sketch11.addConstraint(Sketcher.Constraint("Coincident", 1, 2, 2, 1))
sketch11.addConstraint(Sketcher.Constraint("Tangent", 2, 2, 3, 1))
sketch11.addConstraint(Sketcher.Constraint("Tangent", 3, 2, 4, 1))
sketch11.addConstraint(Sketcher.Constraint("Coincident", 4, 2, 5, 1))
sketch11.addConstraint(Sketcher.Constraint("Coincident", 5, 2, 6, 1))
sketch11.addConstraint(Sketcher.Constraint("Tangent", 6, 2, 7, 2))
sketch11.addConstraint(Sketcher.Constraint("Tangent", 7, 1, 0, 1))
sketch11.addConstraint(Sketcher.Constraint("Horizontal", 0))
sketch11.addConstraint(Sketcher.Constraint("Vertical", 1))
sketch11.addConstraint(Sketcher.Constraint("Horizontal", 2))
sketch11.addConstraint(Sketcher.Constraint("Horizontal", 4))
sketch11.addConstraint(Sketcher.Constraint("Vertical", 5))
sketch11.addConstraint(Sketcher.Constraint("Horizontal", 6))
sketch11.addConstraint(Sketcher.Constraint("Coincident", 7, 3, 3, 3))
sketch11.addConstraint(Sketcher.Constraint("PointOnObject", 3, 3, -2))
sketch11.addConstraint(Sketcher.Constraint("Vertical", 1, 2, 4, 2))
sketch11.addConstraint(Sketcher.Constraint("Radius", 3, 11.5))
sketch11.addConstraint(Sketcher.Constraint("Radius", 7, 12.5))
sketch11.addConstraint(Sketcher.Constraint("DistanceX", 0, 2, 0, 1, 8.9))
sketch11.addConstraint(Sketcher.Constraint("DistanceY", -1, 1, 3, 3, 20.0))
pad5 = doc.addObject("PartDesign::Pad", "Pad004")
body.addObject(pad5)
pad5.Profile = sketch11
pad5.Length = 15
pad5.Reversed = True

doc.recompute()
